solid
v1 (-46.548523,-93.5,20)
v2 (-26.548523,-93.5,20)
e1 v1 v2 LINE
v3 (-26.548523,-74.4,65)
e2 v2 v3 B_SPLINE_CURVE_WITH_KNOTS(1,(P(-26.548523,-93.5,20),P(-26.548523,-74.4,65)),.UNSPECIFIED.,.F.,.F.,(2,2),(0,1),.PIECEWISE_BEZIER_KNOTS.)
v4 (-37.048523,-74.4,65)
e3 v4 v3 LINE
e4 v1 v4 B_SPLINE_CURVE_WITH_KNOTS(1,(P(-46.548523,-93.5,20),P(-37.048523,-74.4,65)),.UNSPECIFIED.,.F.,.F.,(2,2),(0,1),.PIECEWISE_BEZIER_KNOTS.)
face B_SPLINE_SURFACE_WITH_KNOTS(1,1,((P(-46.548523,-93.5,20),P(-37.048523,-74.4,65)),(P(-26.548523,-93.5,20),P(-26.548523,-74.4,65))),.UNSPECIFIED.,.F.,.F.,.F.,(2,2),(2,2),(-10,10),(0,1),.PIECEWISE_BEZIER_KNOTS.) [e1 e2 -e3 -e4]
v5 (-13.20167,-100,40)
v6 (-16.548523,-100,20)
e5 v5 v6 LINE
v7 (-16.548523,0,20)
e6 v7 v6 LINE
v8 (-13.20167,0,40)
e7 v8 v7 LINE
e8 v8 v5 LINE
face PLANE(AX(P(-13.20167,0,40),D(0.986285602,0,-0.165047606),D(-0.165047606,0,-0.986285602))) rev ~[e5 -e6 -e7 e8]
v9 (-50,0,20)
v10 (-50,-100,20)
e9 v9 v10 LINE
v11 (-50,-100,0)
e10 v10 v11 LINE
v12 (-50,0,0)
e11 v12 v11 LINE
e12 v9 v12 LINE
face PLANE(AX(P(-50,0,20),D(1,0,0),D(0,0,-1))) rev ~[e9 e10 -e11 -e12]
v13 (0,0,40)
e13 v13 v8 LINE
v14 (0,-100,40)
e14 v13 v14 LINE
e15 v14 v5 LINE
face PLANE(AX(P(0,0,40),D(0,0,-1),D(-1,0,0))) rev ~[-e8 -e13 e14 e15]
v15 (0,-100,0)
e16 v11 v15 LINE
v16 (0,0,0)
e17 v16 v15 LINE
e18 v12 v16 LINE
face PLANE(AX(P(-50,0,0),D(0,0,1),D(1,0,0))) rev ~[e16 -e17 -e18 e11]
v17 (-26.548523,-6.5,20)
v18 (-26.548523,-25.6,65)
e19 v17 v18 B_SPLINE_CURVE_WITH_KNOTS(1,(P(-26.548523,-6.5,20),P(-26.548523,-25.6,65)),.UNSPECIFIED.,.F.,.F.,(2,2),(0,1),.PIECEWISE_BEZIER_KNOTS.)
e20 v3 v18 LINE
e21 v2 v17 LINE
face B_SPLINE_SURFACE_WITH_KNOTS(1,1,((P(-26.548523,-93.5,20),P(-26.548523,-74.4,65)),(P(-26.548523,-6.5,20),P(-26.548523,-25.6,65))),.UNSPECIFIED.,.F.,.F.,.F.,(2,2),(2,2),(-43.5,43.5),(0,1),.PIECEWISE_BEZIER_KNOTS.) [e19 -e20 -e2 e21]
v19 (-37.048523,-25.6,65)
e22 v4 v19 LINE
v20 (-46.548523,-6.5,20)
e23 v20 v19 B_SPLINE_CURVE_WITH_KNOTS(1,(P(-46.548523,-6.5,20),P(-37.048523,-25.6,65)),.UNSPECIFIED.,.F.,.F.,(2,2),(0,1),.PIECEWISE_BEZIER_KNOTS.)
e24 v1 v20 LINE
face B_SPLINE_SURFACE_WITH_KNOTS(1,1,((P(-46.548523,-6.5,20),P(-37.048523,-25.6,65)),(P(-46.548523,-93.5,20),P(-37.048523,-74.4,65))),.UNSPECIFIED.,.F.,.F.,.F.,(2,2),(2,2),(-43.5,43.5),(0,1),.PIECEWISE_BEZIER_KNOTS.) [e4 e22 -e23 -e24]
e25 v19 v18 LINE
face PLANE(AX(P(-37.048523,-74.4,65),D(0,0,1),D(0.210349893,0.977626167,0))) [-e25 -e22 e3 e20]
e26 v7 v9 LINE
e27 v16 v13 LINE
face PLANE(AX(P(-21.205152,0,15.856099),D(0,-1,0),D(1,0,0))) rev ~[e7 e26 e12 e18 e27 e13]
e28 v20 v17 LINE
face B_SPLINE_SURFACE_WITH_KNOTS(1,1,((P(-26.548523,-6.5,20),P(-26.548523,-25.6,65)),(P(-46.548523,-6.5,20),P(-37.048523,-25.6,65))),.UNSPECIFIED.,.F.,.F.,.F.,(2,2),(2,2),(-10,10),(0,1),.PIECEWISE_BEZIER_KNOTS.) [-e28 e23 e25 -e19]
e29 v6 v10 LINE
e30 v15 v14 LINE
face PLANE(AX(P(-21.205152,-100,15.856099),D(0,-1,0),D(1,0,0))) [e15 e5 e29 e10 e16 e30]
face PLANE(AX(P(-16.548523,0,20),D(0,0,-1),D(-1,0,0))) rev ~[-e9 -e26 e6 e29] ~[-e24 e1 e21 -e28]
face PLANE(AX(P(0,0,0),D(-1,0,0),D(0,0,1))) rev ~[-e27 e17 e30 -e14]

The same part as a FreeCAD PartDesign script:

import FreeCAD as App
import Part
import Sketcher

V = App.Vector
Q = App.Units.Quantity

doc = App.newDocument("Part")
body = doc.addObject("PartDesign::Body", "Body")

# Sketch on XZ plane
sketch1 = doc.addObject("Sketcher::SketchObject", "Sketch")
body.addObject(sketch1)
sketch1.AttachmentSupport = (doc.XZ_Plane, [""])
sketch1.MapMode = "FlatFace"
sketch1.addGeometry([
    Part.LineSegment(V(-50, 0, 0), V(0, 0, 0)),  # 0
    Part.LineSegment(V(0, 0, 0), V(0, 40, 0)),  # 1
    Part.LineSegment(V(0, 40, 0), V(-13, 40, 0)),  # 2
    Part.LineSegment(V(-13, 40, 0), V(-17, 20, 0)),  # 3
    Part.LineSegment(V(-17, 20, 0), V(-50, 20, 0)),  # 4
    Part.LineSegment(V(-50, 20, 0), V(-50, 0, 0)),  # 5
], False)
sketch1.addConstraint([
    Sketcher.Constraint("Coincident", 0, 2, 1, 1),
    Sketcher.Constraint("Coincident", 1, 2, 2, 1),
    Sketcher.Constraint("Coincident", 2, 2, 3, 1),
    Sketcher.Constraint("Coincident", 3, 2, 4, 1),
    Sketcher.Constraint("Coincident", 4, 2, 5, 1),
    Sketcher.Constraint("Coincident", 5, 2, 0, 1),
    Sketcher.Constraint("Horizontal", 0),
    Sketcher.Constraint("Vertical", 1),
    Sketcher.Constraint("Horizontal", 2),
    Sketcher.Constraint("Horizontal", 4),
    Sketcher.Constraint("Vertical", 5),
    Sketcher.Constraint("Coincident", 0, 2, -1, 1),
    Sketcher.Constraint("DistanceX", 0, 1, 0, 2, 50.0),
    Sketcher.Constraint("DistanceY", 1, 1, 1, 2, 40.0),
    Sketcher.Constraint("DistanceY", 5, 2, 5, 1, 20.0),
    Sketcher.Constraint("Angle", 3, Q("-99.5 deg")),
    Sketcher.Constraint("DistanceX", 2, 2, 2, 1, 13.20167),
])
pad1 = doc.addObject("PartDesign::Pad", "Pad")
body.addObject(pad1)
pad1.Profile = sketch1
pad1.Length = 100

# Sketch on XY plane
sketch2 = doc.addObject("Sketcher::SketchObject", "Sketch001")
body.addObject(sketch2)
sketch2.AttachmentSupport = (doc.XY_Plane, [""])
sketch2.MapMode = "FlatFace"
sketch2.AttachmentOffset = App.Placement(V(0, 0, 20), App.Rotation())
sketch2.addGeometry([
    Part.LineSegment(V(-47, -6, 0), V(-47, -94, 0)),
    Part.LineSegment(V(-47, -94, 0), V(-27, -94, 0)),
    Part.LineSegment(V(-27, -94, 0), V(-27, -6, 0)),
    Part.LineSegment(V(-27, -6, 0), V(-47, -6, 0)),
], False)
sketch2.addConstraint([
    Sketcher.Constraint("Coincident", 0, 2, 1, 1),
    Sketcher.Constraint("Coincident", 1, 2, 2, 1),
    Sketcher.Constraint("Coincident", 2, 2, 3, 1),
    Sketcher.Constraint("Coincident", 3, 2, 0, 1),
    Sketcher.Constraint("Vertical", 0),
    Sketcher.Constraint("Horizontal", 1),
    Sketcher.Constraint("Vertical", 2),
    Sketcher.Constraint("Horizontal", 3),
    Sketcher.Constraint("DistanceX", 1, 1, 1, 2, 20.0),
    Sketcher.Constraint("DistanceY", 0, 2, 0, 1, 87.0),
    Sketcher.Constraint("DistanceY", 0, 2, -1, 1, 93.5),
    Sketcher.Constraint("DistanceX", 0, 2, -1, 1, 46.548523),
])

# Sketch on XY plane
sketch3 = doc.addObject("Sketcher::SketchObject", "Sketch002")
body.addObject(sketch3)
sketch3.AttachmentSupport = (doc.XY_Plane, [""])
sketch3.MapMode = "FlatFace"
sketch3.AttachmentOffset = App.Placement(V(0, 0, 65), App.Rotation())
sketch3.addGeometry([
    Part.LineSegment(V(-37, -26, 0), V(-37, -74, 0)),
    Part.LineSegment(V(-37, -74, 0), V(-27, -74, 0)),
    Part.LineSegment(V(-27, -74, 0), V(-27, -26, 0)),
    Part.LineSegment(V(-27, -26, 0), V(-37, -26, 0)),
], False)
sketch3.addConstraint([
    Sketcher.Constraint("Coincident", 0, 2, 1, 1),
    Sketcher.Constraint("Coincident", 1, 2, 2, 1),
    Sketcher.Constraint("Coincident", 2, 2, 3, 1),
    Sketcher.Constraint("Coincident", 3, 2, 0, 1),
    Sketcher.Constraint("Vertical", 0),
    Sketcher.Constraint("Horizontal", 1),
    Sketcher.Constraint("Vertical", 2),
    Sketcher.Constraint("Horizontal", 3),
    Sketcher.Constraint("DistanceX", 1, 1, 1, 2, 10.5),
    Sketcher.Constraint("DistanceY", 0, 2, 0, 1, 48.8),
    Sketcher.Constraint("DistanceY", 0, 2, -1, 1, 74.4),
    Sketcher.Constraint("DistanceX", 0, 2, -1, 1, 37.048523),
])

additiveloft = doc.addObject("PartDesign::AdditiveLoft", "AdditiveLoft")
body.addObject(additiveloft)
additiveloft.Profile = sketch2
additiveloft.Sections = [sketch3]

doc.recompute()
